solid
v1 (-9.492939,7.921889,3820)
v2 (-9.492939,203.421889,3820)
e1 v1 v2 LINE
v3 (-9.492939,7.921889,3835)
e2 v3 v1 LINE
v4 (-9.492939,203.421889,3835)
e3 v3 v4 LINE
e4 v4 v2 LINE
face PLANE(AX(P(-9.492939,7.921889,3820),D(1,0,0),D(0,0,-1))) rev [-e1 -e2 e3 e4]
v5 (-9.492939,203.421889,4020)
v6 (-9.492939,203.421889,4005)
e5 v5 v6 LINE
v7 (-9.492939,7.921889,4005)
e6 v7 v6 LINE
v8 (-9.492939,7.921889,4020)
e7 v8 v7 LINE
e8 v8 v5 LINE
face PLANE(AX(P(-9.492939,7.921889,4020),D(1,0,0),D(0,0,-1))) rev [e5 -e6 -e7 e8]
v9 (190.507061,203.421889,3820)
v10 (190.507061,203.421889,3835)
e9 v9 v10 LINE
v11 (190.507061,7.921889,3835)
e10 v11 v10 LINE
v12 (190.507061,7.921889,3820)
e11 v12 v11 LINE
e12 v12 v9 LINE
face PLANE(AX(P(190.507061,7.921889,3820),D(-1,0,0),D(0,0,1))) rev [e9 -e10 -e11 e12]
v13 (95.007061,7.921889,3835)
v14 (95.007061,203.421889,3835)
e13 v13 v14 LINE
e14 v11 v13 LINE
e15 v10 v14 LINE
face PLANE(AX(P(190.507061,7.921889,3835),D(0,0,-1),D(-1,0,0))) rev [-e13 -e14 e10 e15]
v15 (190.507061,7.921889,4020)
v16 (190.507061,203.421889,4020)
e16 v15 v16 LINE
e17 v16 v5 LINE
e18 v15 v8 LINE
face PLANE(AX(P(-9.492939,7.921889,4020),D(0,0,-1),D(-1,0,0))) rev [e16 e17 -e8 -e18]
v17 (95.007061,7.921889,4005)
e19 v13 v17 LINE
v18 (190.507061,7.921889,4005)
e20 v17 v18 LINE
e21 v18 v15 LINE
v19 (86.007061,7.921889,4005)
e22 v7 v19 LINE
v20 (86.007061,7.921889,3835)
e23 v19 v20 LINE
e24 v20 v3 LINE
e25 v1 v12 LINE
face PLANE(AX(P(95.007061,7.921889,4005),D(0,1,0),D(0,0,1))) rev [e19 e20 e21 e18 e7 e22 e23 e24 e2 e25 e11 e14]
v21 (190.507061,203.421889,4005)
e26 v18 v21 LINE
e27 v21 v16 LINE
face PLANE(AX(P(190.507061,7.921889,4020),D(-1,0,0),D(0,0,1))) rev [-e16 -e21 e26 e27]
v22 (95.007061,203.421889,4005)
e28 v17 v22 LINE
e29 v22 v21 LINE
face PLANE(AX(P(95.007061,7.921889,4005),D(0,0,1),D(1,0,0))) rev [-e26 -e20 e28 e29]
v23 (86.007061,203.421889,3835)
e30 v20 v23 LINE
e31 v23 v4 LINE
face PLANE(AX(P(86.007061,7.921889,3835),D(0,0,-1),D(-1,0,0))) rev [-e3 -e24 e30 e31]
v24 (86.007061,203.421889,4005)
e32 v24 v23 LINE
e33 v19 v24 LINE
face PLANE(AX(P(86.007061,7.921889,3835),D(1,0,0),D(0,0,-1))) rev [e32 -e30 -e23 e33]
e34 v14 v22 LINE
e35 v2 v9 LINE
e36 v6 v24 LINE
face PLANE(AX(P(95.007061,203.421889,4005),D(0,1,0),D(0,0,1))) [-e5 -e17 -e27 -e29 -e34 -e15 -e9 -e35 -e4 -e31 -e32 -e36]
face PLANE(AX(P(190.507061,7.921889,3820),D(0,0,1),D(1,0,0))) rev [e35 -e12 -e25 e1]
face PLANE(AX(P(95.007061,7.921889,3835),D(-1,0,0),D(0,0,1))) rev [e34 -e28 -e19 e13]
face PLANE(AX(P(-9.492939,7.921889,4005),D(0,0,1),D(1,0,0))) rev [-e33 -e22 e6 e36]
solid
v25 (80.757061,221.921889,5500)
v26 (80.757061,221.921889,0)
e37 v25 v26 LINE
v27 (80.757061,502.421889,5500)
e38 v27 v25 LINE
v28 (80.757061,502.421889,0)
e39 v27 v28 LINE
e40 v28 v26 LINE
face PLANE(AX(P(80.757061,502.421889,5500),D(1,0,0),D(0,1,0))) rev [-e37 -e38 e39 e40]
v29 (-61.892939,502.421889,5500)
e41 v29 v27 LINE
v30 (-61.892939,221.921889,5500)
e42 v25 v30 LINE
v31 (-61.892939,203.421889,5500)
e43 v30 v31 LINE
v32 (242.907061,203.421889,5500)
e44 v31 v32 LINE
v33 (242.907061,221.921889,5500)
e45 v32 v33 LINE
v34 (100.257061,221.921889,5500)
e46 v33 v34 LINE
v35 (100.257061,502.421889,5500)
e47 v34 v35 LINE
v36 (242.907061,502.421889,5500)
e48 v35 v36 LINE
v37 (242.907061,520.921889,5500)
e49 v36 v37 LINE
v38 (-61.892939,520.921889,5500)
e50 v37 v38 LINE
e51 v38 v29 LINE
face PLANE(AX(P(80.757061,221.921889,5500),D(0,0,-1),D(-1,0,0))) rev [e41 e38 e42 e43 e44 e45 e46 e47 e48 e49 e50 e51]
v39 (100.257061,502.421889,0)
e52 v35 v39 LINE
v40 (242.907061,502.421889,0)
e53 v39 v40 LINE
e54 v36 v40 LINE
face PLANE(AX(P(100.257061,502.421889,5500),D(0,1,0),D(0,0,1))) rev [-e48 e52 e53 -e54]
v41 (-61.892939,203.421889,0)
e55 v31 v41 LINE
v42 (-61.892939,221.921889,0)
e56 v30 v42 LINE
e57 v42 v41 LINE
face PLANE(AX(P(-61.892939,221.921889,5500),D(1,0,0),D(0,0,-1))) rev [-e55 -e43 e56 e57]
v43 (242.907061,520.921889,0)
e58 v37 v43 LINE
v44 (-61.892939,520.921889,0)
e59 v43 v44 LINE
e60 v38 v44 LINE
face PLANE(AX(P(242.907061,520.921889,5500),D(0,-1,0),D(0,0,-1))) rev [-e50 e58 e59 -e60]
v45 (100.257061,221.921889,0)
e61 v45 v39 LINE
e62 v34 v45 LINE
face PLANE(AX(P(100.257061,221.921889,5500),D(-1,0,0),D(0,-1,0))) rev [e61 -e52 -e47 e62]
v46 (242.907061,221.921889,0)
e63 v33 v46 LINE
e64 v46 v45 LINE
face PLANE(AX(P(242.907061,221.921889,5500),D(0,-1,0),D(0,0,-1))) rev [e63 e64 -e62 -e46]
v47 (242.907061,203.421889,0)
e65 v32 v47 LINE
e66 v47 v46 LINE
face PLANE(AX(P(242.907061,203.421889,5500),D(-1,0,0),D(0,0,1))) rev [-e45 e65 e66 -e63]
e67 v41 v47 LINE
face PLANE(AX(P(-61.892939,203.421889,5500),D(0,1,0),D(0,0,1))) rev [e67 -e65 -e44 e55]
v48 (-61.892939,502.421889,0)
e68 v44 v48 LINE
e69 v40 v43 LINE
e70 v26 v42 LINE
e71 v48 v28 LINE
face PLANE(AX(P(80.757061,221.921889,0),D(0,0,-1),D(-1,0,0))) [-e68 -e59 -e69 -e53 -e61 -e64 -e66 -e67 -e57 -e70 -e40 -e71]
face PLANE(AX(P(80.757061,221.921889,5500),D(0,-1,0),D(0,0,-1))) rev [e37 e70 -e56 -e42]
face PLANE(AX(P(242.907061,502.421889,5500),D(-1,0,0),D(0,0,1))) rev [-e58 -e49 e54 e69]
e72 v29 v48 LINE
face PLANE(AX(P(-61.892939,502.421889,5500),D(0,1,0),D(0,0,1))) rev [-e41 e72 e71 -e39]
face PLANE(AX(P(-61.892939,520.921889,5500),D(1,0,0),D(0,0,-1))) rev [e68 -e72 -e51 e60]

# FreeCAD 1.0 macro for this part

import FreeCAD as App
import Part
import Sketcher

doc = App.newDocument("Part")
body = doc.addObject("PartDesign::Body", "Body")

# Sketch on XY plane
sketch1 = doc.addObject("Sketcher::SketchObject", "Sketch")
body.addObject(sketch1)
sketch1.AttachmentSupport = (doc.XY_Plane, [""])
sketch1.MapMode = "FlatFace"
sketch1.addGeometry(Part.LineSegment(App.Vector(100, 502, 0), App.Vector(243, 502, 0)), False)
sketch1.addGeometry(Part.LineSegment(App.Vector(243, 502, 0), App.Vector(243, 521, 0)), False)
sketch1.addGeometry(Part.LineSegment(App.Vector(243, 521, 0), App.Vector(-62, 521, 0)), False)
sketch1.addGeometry(Part.LineSegment(App.Vector(-62, 521, 0), App.Vector(-62, 502, 0)), False)
sketch1.addGeometry(Part.LineSegment(App.Vector(-62, 502, 0), App.Vector(81, 502, 0)), False)
sketch1.addGeometry(Part.LineSegment(App.Vector(81, 502, 0), App.Vector(81, 222, 0)), False)
sketch1.addGeometry(Part.LineSegment(App.Vector(81, 222, 0), App.Vector(-62, 222, 0)), False)
sketch1.addGeometry(Part.LineSegment(App.Vector(-62, 222, 0), App.Vector(-62, 203, 0)), False)
sketch1.addGeometry(Part.LineSegment(App.Vector(-62, 203, 0), App.Vector(243, 203, 0)), False)
sketch1.addGeometry(Part.LineSegment(App.Vector(243, 203, 0), App.Vector(243, 222, 0)), False)
sketch1.addGeometry(Part.LineSegment(App.Vector(243, 222, 0), App.Vector(100, 222, 0)), False)
sketch1.addGeometry(Part.LineSegment(App.Vector(100, 222, 0), App.Vector(100, 502, 0)), False)
sketch1.addConstraint(Sketcher.Constraint("Coincident", 0, 2, 1, 1))
sketch1.addConstraint(Sketcher.Constraint("Coincident", 1, 2, 2, 1))
sketch1.addConstraint(Sketcher.Constraint("Coincident", 2, 2, 3, 1))
sketch1.addConstraint(Sketcher.Constraint("Coincident", 3, 2, 4, 1))
sketch1.addConstraint(Sketcher.Constraint("Coincident", 4, 2, 5, 1))
sketch1.addConstraint(Sketcher.Constraint("Coincident", 5, 2, 6, 1))
sketch1.addConstraint(Sketcher.Constraint("Coincident", 6, 2, 7, 1))
sketch1.addConstraint(Sketcher.Constraint("Coincident", 7, 2, 8, 1))
sketch1.addConstraint(Sketcher.Constraint("Coincident", 8, 2, 9, 1))
sketch1.addConstraint(Sketcher.Constraint("Coincident", 9, 2, 10, 1))
sketch1.addConstraint(Sketcher.Constraint("Coincident", 10, 2, 11, 1))
sketch1.addConstraint(Sketcher.Constraint("Coincident", 11, 2, 0, 1))
sketch1.addConstraint(Sketcher.Constraint("Horizontal", 0))
sketch1.addConstraint(Sketcher.Constraint("Vertical", 1))
sketch1.addConstraint(Sketcher.Constraint("Horizontal", 2))
sketch1.addConstraint(Sketcher.Constraint("Vertical", 3))
sketch1.addConstraint(Sketcher.Constraint("Horizontal", 4))
sketch1.addConstraint(Sketcher.Constraint("Vertical", 5))
sketch1.addConstraint(Sketcher.Constraint("Horizontal", 6))
sketch1.addConstraint(Sketcher.Constraint("Vertical", 7))
sketch1.addConstraint(Sketcher.Constraint("Horizontal", 8))
sketch1.addConstraint(Sketcher.Constraint("Vertical", 9))
sketch1.addConstraint(Sketcher.Constraint("Horizontal", 10))
sketch1.addConstraint(Sketcher.Constraint("Vertical", 11))
sketch1.addConstraint(Sketcher.Constraint("Horizontal", 0, 2, 3, 2))
sketch1.addConstraint(Sketcher.Constraint("Horizontal", 6, 2, 9, 2))
sketch1.addConstraint(Sketcher.Constraint("Vertical", 3, 2, 6, 2))
sketch1.addConstraint(Sketcher.Constraint("Vertical", 1, 2, 8, 2))
sketch1.addConstraint(Sketcher.Constraint("Equal", 0, 4))
sketch1.addConstraint(Sketcher.Constraint("Equal", 3, 7))
sketch1.addConstraint(Sketcher.Constraint("DistanceX", 2, 2, 2, 1, 304.8))
sketch1.addConstraint(Sketcher.Constraint("DistanceY", 1, 1, 1, 2, 18.5))
sketch1.addConstraint(Sketcher.Constraint("DistanceY", 5, 2, 5, 1, 280.5))
sketch1.addConstraint(Sketcher.Constraint("DistanceX", 0, 1, 0, 2, 142.65))
sketch1.addConstraint(Sketcher.Constraint("DistanceX", -1, 1, 0, 2, 242.907061))
sketch1.addConstraint(Sketcher.Constraint("DistanceY", -1, 1, 0, 2, 502.421889))
pad1 = doc.addObject("PartDesign::Pad", "Pad")
body.addObject(pad1)
pad1.Profile = sketch1
pad1.Length = 5500
body2 = doc.addObject("PartDesign::Body", "Body001")

# Sketch on XZ plane
sketch2 = doc.addObject("Sketcher::SketchObject", "Sketch001")
body2.addObject(sketch2)
sketch2.AttachmentSupport = (doc.getObject("XZ_Plane001"), [""])
sketch2.MapMode = "FlatFace"
sketch2.AttachmentOffset = App.Placement(App.Vector(0, 0, -203.421889), App.Rotation())
sketch2.addGeometry(Part.LineSegment(App.Vector(191, 4020, 0), App.Vector(-9, 4020, 0)), False)
sketch2.addGeometry(Part.LineSegment(App.Vector(-9, 4020, 0), App.Vector(-9, 4005, 0)), False)
sketch2.addGeometry(Part.LineSegment(App.Vector(-9, 4005, 0), App.Vector(86, 4005, 0)), False)
sketch2.addGeometry(Part.LineSegment(App.Vector(86, 4005, 0), App.Vector(86, 3835, 0)), False)
sketch2.addGeometry(Part.LineSegment(App.Vector(86, 3835, 0), App.Vector(-9, 3835, 0)), False)
sketch2.addGeometry(Part.LineSegment(App.Vector(-9, 3835, 0), App.Vector(-9, 3820, 0)), False)
sketch2.addGeometry(Part.LineSegment(App.Vector(-9, 3820, 0), App.Vector(191, 3820, 0)), False)
sketch2.addGeometry(Part.LineSegment(App.Vector(191, 3820, 0), App.Vector(191, 3835, 0)), False)
sketch2.addGeometry(Part.LineSegment(App.Vector(191, 3835, 0), App.Vector(95, 3835, 0)), False)
sketch2.addGeometry(Part.LineSegment(App.Vector(95, 3835, 0), App.Vector(95, 4005, 0)), False)
sketch2.addGeometry(Part.LineSegment(App.Vector(95, 4005, 0), App.Vector(191, 4005, 0)), False)
sketch2.addGeometry(Part.LineSegment(App.Vector(191, 4005, 0), App.Vector(191, 4020, 0)), False)
sketch2.addConstraint(Sketcher.Constraint("Coincident", 0, 2, 1, 1))
sketch2.addConstraint(Sketcher.Constraint("Coincident", 1, 2, 2, 1))
sketch2.addConstraint(Sketcher.Constraint("Coincident", 2, 2, 3, 1))
sketch2.addConstraint(Sketcher.Constraint("Coincident", 3, 2, 4, 1))
sketch2.addConstraint(Sketcher.Constraint("Coincident", 4, 2, 5, 1))
sketch2.addConstraint(Sketcher.Constraint("Coincident", 5, 2, 6, 1))
sketch2.addConstraint(Sketcher.Constraint("Coincident", 6, 2, 7, 1))
sketch2.addConstraint(Sketcher.Constraint("Coincident", 7, 2, 8, 1))
sketch2.addConstraint(Sketcher.Constraint("Coincident", 8, 2, 9, 1))
sketch2.addConstraint(Sketcher.Constraint("Coincident", 9, 2, 10, 1))
sketch2.addConstraint(Sketcher.Constraint("Coincident", 10, 2, 11, 1))
sketch2.addConstraint(Sketcher.Constraint("Coincident", 11, 2, 0, 1))
sketch2.addConstraint(Sketcher.Constraint("Horizontal", 0))
sketch2.addConstraint(Sketcher.Constraint("Vertical", 1))
sketch2.addConstraint(Sketcher.Constraint("Horizontal", 2))
sketch2.addConstraint(Sketcher.Constraint("Vertical", 3))
sketch2.addConstraint(Sketcher.Constraint("Horizontal", 4))
sketch2.addConstraint(Sketcher.Constraint("Vertical", 5))
sketch2.addConstraint(Sketcher.Constraint("Horizontal", 6))
sketch2.addConstraint(Sketcher.Constraint("Vertical", 7))
sketch2.addConstraint(Sketcher.Constraint("Horizontal", 8))
sketch2.addConstraint(Sketcher.Constraint("Vertical", 9))
sketch2.addConstraint(Sketcher.Constraint("Horizontal", 10))
sketch2.addConstraint(Sketcher.Constraint("Vertical", 11))
sketch2.addConstraint(Sketcher.Constraint("Horizontal", 4, 2, 7, 2))
sketch2.addConstraint(Sketcher.Constraint("Horizontal", 2, 2, 9, 2))
sketch2.addConstraint(Sketcher.Constraint("Vertical", 1, 2, 4, 2))
sketch2.addConstraint(Sketcher.Constraint("Vertical", 7, 2, 10, 2))
sketch2.addConstraint(Sketcher.Constraint("Equal", 4, 8))
sketch2.addConstraint(Sketcher.Constraint("Equal", 1, 5))
sketch2.addConstraint(Sketcher.Constraint("DistanceX", 0, 2, 0, 1, 200.0))
sketch2.addConstraint(Sketcher.Constraint("DistanceY", 1, 2, 1, 1, 15.0))
sketch2.addConstraint(Sketcher.Constraint("DistanceY", 3, 2, 3, 1, 170.0))
sketch2.addConstraint(Sketcher.Constraint("DistanceX", 2, 1, 2, 2, 95.5))
sketch2.addConstraint(Sketcher.Constraint("DistanceY", -1, 1, 0, 2, 4020.0))
sketch2.addConstraint(Sketcher.Constraint("DistanceX", 0, 2, -1, 1, 9.492939))
pad2 = doc.addObject("PartDesign::Pad", "Pad001")
body2.addObject(pad2)
pad2.Profile = sketch2
pad2.Length = 195.5

doc.recompute()
